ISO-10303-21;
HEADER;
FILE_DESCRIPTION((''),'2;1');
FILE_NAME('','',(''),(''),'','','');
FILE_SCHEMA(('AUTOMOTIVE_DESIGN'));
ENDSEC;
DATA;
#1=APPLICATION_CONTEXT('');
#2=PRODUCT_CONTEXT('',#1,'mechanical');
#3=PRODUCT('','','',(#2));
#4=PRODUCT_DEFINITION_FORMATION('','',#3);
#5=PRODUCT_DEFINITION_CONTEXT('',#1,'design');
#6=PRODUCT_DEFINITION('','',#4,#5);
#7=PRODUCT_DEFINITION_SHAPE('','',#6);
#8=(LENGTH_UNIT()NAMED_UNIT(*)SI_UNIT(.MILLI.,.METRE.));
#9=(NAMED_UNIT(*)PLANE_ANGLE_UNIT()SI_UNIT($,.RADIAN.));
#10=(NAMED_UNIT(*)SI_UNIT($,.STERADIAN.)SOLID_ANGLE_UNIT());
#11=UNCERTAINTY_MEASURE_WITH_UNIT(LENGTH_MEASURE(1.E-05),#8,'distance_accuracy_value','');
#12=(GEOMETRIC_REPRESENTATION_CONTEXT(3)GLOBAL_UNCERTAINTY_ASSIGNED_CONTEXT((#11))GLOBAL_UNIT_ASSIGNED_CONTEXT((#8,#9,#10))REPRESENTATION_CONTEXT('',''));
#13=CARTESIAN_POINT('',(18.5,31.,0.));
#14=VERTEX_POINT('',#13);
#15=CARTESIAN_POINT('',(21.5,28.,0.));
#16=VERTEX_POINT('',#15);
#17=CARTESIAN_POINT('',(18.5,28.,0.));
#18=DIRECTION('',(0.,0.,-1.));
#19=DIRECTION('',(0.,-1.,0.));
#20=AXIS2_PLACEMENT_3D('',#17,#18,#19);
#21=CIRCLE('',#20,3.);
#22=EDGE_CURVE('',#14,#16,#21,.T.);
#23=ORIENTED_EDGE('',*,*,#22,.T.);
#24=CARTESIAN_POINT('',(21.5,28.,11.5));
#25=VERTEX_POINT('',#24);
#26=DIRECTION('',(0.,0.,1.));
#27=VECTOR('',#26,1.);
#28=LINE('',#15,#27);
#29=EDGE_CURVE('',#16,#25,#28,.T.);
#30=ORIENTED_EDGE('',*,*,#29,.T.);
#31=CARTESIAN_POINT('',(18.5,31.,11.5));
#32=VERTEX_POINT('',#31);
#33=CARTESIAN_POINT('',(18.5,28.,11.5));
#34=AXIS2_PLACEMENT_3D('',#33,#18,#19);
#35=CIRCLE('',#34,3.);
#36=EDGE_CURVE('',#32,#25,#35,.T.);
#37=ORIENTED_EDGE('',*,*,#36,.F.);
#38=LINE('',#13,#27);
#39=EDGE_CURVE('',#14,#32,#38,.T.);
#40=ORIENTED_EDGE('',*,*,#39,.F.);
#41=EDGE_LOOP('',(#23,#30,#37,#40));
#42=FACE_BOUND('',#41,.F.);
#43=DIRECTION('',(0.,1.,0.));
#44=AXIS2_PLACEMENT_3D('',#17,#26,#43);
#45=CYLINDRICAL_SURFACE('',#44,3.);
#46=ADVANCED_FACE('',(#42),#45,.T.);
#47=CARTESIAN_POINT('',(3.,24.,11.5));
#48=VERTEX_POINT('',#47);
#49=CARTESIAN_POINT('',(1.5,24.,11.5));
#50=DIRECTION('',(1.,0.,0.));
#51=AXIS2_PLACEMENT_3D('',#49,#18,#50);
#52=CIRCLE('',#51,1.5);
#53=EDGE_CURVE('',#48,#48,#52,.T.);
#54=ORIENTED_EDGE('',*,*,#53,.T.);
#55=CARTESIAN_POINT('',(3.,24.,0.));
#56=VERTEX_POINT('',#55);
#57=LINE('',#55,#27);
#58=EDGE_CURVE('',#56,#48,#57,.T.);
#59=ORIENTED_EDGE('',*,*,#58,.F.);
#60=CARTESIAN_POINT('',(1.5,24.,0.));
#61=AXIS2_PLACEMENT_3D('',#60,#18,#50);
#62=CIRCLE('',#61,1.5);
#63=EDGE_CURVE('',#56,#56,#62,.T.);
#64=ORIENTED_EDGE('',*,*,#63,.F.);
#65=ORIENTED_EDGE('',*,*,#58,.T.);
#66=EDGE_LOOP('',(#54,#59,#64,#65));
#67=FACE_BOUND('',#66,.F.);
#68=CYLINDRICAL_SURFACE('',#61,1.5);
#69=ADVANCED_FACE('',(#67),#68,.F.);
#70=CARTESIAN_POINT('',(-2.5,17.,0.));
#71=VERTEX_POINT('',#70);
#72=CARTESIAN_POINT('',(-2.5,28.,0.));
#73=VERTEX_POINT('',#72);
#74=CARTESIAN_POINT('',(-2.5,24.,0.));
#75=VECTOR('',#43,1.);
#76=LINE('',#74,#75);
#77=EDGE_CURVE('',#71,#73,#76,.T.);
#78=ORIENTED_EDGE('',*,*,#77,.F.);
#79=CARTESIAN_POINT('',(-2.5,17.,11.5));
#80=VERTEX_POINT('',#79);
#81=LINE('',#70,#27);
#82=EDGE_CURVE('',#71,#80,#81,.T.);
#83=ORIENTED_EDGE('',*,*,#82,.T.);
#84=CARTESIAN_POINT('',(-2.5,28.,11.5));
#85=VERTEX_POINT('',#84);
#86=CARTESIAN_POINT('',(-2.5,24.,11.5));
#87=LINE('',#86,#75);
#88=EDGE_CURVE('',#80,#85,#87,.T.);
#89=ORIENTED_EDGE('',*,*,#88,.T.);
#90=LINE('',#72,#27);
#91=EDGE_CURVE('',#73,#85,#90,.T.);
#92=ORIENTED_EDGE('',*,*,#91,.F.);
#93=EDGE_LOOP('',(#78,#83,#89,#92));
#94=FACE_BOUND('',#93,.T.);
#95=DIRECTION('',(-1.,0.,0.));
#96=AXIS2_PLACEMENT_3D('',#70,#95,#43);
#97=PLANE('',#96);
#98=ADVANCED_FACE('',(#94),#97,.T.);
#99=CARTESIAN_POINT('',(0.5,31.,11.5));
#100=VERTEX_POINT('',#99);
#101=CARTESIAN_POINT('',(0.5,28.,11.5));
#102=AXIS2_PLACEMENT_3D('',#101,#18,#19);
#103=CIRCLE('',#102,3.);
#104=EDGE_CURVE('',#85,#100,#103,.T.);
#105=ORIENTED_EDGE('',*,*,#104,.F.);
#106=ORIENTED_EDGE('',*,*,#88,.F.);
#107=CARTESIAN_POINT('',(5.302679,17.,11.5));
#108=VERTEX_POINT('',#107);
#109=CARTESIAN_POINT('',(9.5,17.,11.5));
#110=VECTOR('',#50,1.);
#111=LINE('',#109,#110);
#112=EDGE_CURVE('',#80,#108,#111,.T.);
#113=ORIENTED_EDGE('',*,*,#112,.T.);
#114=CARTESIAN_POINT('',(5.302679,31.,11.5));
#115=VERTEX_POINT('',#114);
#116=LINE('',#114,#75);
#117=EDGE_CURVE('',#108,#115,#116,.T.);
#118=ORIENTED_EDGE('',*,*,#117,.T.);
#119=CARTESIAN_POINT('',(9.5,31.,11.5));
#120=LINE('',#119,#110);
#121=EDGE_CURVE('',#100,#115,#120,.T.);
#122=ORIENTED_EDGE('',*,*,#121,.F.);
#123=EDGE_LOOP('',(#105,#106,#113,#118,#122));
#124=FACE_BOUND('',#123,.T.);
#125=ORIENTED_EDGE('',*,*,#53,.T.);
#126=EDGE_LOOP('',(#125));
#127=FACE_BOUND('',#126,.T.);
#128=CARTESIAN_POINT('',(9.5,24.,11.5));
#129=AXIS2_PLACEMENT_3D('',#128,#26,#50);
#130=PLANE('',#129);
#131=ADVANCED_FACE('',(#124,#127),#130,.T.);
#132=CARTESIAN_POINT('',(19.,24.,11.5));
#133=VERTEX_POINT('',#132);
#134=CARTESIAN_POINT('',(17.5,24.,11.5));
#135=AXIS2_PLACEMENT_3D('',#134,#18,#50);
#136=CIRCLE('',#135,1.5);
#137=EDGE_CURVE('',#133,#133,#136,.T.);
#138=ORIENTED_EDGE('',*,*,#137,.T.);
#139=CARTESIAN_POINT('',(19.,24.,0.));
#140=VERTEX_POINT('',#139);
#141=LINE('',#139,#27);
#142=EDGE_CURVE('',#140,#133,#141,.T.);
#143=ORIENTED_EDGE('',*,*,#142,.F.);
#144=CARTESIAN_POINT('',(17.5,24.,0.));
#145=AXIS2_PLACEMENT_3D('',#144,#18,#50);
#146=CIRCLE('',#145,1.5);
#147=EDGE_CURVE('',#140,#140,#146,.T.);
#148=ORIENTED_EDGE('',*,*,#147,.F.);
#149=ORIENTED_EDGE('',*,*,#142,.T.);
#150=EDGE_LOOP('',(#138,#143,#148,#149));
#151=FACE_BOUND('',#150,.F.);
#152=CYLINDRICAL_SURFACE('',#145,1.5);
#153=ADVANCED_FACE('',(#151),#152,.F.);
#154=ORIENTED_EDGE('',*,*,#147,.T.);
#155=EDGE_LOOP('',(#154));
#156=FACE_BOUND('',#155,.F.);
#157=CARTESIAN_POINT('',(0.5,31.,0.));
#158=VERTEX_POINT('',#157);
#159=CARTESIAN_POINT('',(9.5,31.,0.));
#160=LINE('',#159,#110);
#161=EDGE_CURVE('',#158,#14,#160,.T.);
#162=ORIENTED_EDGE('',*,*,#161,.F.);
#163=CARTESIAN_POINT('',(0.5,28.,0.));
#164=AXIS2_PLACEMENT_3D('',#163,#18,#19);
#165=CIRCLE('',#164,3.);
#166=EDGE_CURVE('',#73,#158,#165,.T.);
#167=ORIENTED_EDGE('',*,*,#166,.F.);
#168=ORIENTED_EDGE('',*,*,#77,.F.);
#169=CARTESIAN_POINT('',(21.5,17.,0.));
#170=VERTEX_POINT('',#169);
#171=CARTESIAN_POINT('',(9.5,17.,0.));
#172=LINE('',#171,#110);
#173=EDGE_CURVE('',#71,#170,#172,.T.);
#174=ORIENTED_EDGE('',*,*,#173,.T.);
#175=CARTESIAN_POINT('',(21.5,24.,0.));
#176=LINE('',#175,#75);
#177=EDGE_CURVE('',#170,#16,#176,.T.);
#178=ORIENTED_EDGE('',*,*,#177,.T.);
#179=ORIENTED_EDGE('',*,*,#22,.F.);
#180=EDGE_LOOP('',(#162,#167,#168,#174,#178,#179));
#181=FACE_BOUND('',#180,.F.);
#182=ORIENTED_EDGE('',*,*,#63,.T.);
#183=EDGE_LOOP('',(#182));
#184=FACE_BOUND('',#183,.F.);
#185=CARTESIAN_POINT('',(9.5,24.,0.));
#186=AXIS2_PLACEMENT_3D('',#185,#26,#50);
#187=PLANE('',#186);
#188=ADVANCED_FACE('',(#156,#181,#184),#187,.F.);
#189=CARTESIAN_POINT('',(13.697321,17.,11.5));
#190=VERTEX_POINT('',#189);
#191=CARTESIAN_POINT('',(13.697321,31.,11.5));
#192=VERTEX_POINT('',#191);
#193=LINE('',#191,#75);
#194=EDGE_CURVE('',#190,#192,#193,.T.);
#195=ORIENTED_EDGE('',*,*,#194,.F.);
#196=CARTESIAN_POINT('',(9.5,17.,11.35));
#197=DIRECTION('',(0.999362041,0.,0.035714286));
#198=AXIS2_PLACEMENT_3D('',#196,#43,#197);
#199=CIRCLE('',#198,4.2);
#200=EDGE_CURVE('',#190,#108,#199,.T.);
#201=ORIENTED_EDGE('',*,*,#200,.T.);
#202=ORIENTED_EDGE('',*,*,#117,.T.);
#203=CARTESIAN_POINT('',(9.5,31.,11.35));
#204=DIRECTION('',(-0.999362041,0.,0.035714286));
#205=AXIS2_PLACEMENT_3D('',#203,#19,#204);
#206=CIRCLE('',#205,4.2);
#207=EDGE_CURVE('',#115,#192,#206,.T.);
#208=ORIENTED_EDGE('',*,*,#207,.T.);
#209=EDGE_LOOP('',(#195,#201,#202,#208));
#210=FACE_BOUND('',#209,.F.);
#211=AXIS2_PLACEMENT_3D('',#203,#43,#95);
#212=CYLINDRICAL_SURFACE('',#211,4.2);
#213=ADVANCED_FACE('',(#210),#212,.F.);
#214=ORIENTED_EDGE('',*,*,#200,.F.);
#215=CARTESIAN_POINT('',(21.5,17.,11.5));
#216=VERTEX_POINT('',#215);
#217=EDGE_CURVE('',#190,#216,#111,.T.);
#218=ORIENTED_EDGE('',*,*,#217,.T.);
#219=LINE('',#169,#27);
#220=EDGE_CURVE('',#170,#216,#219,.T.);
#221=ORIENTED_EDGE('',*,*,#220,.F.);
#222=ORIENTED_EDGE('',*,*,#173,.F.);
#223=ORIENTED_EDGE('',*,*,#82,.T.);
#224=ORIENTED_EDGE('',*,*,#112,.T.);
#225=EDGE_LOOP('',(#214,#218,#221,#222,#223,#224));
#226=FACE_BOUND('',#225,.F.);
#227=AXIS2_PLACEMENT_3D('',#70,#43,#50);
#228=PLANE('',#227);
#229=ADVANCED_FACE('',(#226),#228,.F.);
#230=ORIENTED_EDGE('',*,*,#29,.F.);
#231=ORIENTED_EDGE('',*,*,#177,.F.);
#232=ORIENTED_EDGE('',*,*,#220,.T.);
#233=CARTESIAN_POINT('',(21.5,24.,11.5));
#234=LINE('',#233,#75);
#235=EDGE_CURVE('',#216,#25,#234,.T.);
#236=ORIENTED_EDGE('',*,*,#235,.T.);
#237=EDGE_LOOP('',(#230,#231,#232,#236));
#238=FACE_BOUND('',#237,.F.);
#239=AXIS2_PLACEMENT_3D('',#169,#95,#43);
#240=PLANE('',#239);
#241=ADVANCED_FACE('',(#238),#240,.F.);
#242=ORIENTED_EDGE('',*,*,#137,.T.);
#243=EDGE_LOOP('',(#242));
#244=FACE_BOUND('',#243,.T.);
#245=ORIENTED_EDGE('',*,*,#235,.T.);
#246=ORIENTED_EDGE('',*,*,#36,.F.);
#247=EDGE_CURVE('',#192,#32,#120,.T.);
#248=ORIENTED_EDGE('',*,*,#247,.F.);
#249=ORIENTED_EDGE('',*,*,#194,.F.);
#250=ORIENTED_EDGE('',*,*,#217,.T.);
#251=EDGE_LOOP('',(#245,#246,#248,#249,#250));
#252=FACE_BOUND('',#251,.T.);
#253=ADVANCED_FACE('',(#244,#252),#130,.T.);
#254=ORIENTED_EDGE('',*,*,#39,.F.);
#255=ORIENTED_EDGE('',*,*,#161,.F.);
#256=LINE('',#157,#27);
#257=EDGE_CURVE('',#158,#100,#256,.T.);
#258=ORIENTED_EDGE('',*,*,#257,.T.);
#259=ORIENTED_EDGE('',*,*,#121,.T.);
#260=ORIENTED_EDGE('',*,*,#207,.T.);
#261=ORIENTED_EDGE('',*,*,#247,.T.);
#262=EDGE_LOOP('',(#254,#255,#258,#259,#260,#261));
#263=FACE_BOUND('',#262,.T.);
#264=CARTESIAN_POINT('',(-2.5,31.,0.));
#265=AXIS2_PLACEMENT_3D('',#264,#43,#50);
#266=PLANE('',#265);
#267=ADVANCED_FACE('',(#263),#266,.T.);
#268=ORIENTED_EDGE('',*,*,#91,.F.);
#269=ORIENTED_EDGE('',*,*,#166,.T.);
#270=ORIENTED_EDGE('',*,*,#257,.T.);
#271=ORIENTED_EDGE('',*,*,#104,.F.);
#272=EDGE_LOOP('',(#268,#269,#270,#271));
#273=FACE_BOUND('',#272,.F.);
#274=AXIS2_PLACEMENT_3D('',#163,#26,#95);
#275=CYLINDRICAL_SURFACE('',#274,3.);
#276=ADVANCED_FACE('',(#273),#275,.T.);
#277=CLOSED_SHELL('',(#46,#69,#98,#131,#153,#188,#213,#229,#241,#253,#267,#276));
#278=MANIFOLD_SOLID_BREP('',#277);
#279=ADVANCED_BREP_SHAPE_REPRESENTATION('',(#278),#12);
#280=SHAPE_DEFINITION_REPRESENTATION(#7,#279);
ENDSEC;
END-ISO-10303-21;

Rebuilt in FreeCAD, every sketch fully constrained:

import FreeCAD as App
import Part
import Sketcher
from FreeCAD import Vector


def edges_at(feature, points):
    """Names of the edges that pass closest to the given points."""
    edges = feature.Shape.Edges
    near = lambda p: min(range(len(edges)), key=lambda i: edges[i].distToShape(Part.Vertex(*p))[0])
    return sorted({f"Edge{near(p) + 1}" for p in points})


def add_polygon(sketch, points):
    """Adds a closed chain of lines whose ends are joined by coincident constraints."""
    first, n = sketch.GeometryCount, len(points)
    for a, b in zip(points, points[1:] + points[:1]):
        sketch.addGeometry(Part.LineSegment(App.Vector(*a, 0), App.Vector(*b, 0)), False)
    for i in range(n):
        sketch.addConstraint(Sketcher.Constraint("Coincident", first + i, 2, first + (i + 1) % n, 1))

doc = App.newDocument("Part")
body = doc.addObject("PartDesign::Body", "Body")

sketch1 = body.newObject("Sketcher::SketchObject", "Sketch")
sketch1.AttachmentSupport = (doc.getObject("XY_Plane"), [""])
sketch1.MapMode = "FlatFace"
add_polygon(sketch1, [(-2, 31), (-2, 17), (22, 17), (22, 31)])
sketch1.addConstraint(Sketcher.Constraint("Vertical", 0))
sketch1.addConstraint(Sketcher.Constraint("Horizontal", 1))
sketch1.addConstraint(Sketcher.Constraint("Vertical", 2))
sketch1.addConstraint(Sketcher.Constraint("Horizontal", 3))
sketch1.addConstraint(Sketcher.Constraint("DistanceX", 1, 1, 1, 2, 24.0))
sketch1.addConstraint(Sketcher.Constraint("DistanceY", 0, 2, 0, 1, 14.0))
sketch1.addConstraint(Sketcher.Constraint("DistanceY", -1, 1, 0, 2, 17.0))
sketch1.addConstraint(Sketcher.Constraint("DistanceX", 0, 2, -1, 1, 2.5))
pad1 = body.newObject("PartDesign::Pad", "Pad")
pad1.Profile = sketch1
pad1.Length = 11.5

sketch2 = body.newObject("Sketcher::SketchObject", "Sketch001")
sketch2.AttachmentSupport = (doc.getObject("XZ_Plane"), [""])
sketch2.MapMode = "FlatFace"
sketch2.AttachmentOffset = App.Placement(Vector(0, 0, -31), App.Rotation())
sketch2.addGeometry(Part.Circle(Vector(9.5, 11.3, 0), Vector(0, 0, 1), 4.2), False)
sketch2.addConstraint(Sketcher.Constraint("Diameter", 0, 8.4))
sketch2.addConstraint(Sketcher.Constraint("DistanceX", -1, 1, 0, 3, 9.5))
sketch2.addConstraint(Sketcher.Constraint("DistanceY", -1, 1, 0, 3, 11.35))
pocket1 = body.newObject("PartDesign::Pocket", "Pocket")
pocket1.Profile = sketch2
pocket1.Length = 14
pocket1.Reversed = True

sketch3 = body.newObject("Sketcher::SketchObject", "Sketch002")
sketch3.AttachmentSupport = (doc.getObject("XY_Plane"), [""])
sketch3.MapMode = "FlatFace"
sketch3.addGeometry(Part.Circle(Vector(1.5, 24, 0), Vector(0, 0, 1), 1.5), False)
sketch3.addGeometry(Part.Circle(Vector(17.5, 24, 0), Vector(0, 0, 1), 1.5), False)
sketch3.addConstraint(Sketcher.Constraint("Equal", 0, 1))
sketch3.addConstraint(Sketcher.Constraint("Horizontal", 0, 3, 1, 3))
sketch3.addConstraint(Sketcher.Constraint("Diameter", 0, 3.0))
sketch3.addConstraint(Sketcher.Constraint("DistanceY", -1, 1, 0, 3, 24.0))
sketch3.addConstraint(Sketcher.Constraint("DistanceX", 0, 3, 1, 3, 16.0))
sketch3.addConstraint(Sketcher.Constraint("DistanceX", -1, 1, 0, 3, 1.5))
pocket2 = body.newObject("PartDesign::Pocket", "Pocket001")
pocket2.Profile = sketch3
pocket2.Type = "ThroughAll"
pocket2.Reversed = True
doc.recompute()

fillet = body.newObject("PartDesign::Fillet", "Fillet")
fillet.Base = (pocket2, edges_at(pocket2, [(-2.5, 31, 5.75), (21.5, 31, 5.75)]))
fillet.Radius = 3

doc.recompute()
